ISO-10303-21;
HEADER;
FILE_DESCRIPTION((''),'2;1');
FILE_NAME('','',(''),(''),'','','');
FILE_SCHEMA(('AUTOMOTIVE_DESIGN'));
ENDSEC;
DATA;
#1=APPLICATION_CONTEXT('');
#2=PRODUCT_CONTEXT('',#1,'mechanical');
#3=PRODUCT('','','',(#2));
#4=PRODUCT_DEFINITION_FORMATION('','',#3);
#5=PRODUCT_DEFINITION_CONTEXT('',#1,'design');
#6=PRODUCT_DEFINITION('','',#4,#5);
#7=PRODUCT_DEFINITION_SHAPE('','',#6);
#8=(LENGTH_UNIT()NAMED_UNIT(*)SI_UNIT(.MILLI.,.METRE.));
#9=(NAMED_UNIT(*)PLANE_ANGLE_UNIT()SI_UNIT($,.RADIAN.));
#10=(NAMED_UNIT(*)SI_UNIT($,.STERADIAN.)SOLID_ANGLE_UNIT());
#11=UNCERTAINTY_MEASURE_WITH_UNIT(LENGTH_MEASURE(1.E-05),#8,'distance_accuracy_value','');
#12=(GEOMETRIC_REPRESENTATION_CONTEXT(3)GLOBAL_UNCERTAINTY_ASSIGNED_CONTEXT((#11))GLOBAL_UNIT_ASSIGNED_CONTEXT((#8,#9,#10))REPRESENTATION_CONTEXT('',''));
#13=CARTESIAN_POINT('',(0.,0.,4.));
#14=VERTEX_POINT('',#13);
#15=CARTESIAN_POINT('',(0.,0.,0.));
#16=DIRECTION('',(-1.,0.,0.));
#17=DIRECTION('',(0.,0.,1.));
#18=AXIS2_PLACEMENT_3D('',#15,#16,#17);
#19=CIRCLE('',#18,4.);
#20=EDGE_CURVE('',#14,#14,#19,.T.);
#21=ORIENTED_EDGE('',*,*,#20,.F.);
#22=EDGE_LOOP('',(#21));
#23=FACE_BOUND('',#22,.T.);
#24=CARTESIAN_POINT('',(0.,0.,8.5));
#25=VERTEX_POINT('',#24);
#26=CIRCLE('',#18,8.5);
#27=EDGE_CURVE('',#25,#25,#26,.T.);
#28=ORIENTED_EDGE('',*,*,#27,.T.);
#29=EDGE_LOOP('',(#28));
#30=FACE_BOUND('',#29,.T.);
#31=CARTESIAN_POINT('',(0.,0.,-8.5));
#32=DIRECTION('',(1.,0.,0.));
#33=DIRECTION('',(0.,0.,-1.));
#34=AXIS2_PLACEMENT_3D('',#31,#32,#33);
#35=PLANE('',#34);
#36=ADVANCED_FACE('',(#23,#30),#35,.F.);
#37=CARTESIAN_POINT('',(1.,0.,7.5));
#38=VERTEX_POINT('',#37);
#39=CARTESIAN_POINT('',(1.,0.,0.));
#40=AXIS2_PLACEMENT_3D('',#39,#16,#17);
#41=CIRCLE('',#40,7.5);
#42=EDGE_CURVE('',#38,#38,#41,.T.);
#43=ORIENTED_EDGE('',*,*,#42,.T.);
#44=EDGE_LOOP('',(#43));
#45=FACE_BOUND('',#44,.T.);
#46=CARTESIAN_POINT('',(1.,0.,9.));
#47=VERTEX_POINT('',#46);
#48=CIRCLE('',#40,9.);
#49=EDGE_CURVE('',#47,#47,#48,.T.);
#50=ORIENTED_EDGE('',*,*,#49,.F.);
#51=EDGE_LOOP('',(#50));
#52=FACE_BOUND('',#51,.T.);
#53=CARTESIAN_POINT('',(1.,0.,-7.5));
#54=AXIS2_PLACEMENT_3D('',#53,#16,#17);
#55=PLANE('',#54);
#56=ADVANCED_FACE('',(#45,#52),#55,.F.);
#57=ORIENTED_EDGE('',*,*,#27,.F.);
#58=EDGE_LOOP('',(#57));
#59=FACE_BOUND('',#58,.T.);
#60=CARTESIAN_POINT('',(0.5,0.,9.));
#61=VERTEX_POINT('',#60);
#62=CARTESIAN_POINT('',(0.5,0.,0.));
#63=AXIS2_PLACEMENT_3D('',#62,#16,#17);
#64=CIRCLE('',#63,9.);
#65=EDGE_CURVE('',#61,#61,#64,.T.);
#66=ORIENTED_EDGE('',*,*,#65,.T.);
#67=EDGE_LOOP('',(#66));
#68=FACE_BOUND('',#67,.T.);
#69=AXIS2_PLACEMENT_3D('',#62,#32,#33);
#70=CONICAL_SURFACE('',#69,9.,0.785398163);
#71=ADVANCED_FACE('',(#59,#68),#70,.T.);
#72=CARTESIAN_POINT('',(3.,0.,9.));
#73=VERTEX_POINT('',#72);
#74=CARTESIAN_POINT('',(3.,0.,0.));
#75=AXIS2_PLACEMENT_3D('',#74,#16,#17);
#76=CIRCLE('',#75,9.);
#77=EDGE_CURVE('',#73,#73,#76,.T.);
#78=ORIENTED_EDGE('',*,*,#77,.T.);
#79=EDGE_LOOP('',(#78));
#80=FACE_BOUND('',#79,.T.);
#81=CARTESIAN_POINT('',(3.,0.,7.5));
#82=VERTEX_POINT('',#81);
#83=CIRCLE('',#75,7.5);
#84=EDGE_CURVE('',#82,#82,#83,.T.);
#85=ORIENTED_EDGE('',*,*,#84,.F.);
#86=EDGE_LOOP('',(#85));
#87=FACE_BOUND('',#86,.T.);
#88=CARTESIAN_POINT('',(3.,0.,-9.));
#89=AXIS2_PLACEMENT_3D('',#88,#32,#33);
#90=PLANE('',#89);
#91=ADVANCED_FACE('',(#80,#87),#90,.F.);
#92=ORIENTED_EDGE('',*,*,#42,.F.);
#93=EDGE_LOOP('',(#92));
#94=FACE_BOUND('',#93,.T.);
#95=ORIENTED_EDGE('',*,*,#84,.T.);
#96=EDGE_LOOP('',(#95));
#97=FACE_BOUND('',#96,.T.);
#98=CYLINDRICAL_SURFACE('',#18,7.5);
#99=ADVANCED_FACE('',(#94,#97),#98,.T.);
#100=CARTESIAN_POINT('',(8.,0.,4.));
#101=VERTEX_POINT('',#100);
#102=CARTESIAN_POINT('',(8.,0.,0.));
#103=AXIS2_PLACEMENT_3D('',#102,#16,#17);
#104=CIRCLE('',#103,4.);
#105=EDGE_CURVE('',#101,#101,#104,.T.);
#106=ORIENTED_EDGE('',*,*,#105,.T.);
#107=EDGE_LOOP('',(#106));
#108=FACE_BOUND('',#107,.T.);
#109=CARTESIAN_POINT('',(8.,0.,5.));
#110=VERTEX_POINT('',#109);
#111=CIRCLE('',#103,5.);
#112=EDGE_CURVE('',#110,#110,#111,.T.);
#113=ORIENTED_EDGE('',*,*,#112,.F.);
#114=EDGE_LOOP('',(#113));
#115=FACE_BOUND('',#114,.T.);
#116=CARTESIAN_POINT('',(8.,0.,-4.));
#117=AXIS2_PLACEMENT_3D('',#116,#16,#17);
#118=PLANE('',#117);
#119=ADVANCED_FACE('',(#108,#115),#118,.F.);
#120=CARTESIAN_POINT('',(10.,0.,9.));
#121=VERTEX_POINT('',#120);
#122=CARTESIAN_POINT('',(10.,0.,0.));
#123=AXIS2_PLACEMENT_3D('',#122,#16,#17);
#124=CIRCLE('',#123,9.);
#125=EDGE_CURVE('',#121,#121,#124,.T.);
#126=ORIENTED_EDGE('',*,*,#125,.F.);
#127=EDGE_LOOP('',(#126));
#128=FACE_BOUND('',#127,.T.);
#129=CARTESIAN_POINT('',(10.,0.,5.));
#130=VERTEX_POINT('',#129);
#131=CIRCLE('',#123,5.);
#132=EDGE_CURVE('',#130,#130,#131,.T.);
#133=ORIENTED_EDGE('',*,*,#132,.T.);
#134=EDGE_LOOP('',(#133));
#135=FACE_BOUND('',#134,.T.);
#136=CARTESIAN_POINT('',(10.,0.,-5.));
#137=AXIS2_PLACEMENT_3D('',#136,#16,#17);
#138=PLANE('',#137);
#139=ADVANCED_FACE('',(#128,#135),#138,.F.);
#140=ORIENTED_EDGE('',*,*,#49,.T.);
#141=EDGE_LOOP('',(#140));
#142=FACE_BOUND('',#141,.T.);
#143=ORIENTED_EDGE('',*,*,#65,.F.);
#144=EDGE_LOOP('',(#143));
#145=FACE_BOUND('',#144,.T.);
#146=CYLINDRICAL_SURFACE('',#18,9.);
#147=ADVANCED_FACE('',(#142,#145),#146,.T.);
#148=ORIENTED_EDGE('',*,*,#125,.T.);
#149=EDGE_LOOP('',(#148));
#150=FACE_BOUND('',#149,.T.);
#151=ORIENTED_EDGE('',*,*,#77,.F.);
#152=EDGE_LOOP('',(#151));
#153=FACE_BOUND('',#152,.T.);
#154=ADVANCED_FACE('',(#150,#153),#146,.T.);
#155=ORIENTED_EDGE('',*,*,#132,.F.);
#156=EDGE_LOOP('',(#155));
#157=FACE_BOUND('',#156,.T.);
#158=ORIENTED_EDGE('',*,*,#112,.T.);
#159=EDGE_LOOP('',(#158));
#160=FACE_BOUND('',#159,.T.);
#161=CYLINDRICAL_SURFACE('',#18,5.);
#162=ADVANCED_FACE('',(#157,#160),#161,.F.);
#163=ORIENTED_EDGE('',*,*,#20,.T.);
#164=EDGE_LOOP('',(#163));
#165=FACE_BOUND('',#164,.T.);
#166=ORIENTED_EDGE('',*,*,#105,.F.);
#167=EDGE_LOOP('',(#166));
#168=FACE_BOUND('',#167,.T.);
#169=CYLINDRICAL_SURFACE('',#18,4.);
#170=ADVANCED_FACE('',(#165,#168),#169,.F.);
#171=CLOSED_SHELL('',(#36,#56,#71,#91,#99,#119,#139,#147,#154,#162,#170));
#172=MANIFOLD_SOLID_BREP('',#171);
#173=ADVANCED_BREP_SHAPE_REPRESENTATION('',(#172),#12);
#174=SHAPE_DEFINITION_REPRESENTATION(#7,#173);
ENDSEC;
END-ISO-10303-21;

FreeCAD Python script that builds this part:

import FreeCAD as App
import Part
import Sketcher
from FreeCAD import Vector
Q = App.Units.Quantity

doc = App.newDocument("Part")
body = doc.addObject("PartDesign::Body", "Body")

# Sketch on XZ plane
sketch1 = body.newObject("Sketcher::SketchObject", "Sketch")
sketch1.AttachmentSupport = (doc.getObject("XZ_Plane"), [""])
sketch1.MapMode = "FlatFace"
sketch1.addGeometry([
    Part.LineSegment(Vector(0, -4, 0), Vector(8, -4, 0)),  # 0
    Part.LineSegment(Vector(8, -4, 0), Vector(8, -5, 0)),  # 1
    Part.LineSegment(Vector(8, -5, 0), Vector(10, -5, 0)),  # 2
    Part.LineSegment(Vector(10, -5, 0), Vector(10, -9, 0)),  # 3
    Part.LineSegment(Vector(10, -9, 0), Vector(3, -9, 0)),  # 4
    Part.LineSegment(Vector(3, -9, 0), Vector(3, -7.5, 0)),  # 5
    Part.LineSegment(Vector(3, -7.5, 0), Vector(1, -7.5, 0)),  # 6
    Part.LineSegment(Vector(1, -7.5, 0), Vector(1, -9, 0)),  # 7
    Part.LineSegment(Vector(1, -9, 0), Vector(0.5, -9, 0)),  # 8
    Part.LineSegment(Vector(0.5, -9, 0), Vector(0, -8.5, 0)),  # 9
    Part.LineSegment(Vector(0, -8.5, 0), Vector(0, -4, 0)),  # 10
], False)
sketch1.addConstraint([
    Sketcher.Constraint("Coincident", 0, 2, 1, 1),
    Sketcher.Constraint("Coincident", 1, 2, 2, 1),
    Sketcher.Constraint("Coincident", 2, 2, 3, 1),
    Sketcher.Constraint("Coincident", 3, 2, 4, 1),
    Sketcher.Constraint("Coincident", 4, 2, 5, 1),
    Sketcher.Constraint("Coincident", 5, 2, 6, 1),
    Sketcher.Constraint("Coincident", 6, 2, 7, 1),
    Sketcher.Constraint("Coincident", 7, 2, 8, 1),
    Sketcher.Constraint("Coincident", 8, 2, 9, 1),
    Sketcher.Constraint("Coincident", 9, 2, 10, 1),
    Sketcher.Constraint("Coincident", 10, 2, 0, 1),
    Sketcher.Constraint("Horizontal", 0),
    Sketcher.Constraint("Vertical", 1),
    Sketcher.Constraint("Horizontal", 2),
    Sketcher.Constraint("Vertical", 3),
    Sketcher.Constraint("Horizontal", 4),
    Sketcher.Constraint("Vertical", 5),
    Sketcher.Constraint("Horizontal", 6),
    Sketcher.Constraint("Vertical", 7),
    Sketcher.Constraint("Horizontal", 8),
    Sketcher.Constraint("Vertical", 10),
    Sketcher.Constraint("PointOnObject", 9, 2, -2),
    Sketcher.Constraint("Horizontal", 4, 2, 7, 2),
    Sketcher.Constraint("Equal", 2, 6),
    Sketcher.Constraint("DistanceX", 0, 1, 0, 2, Q("8 mm")),
    Sketcher.Constraint("DistanceX", 2, 1, 2, 2, Q("2 mm")),
    Sketcher.Constraint("DistanceX", 4, 2, 4, 1, Q("7 mm")),
    Sketcher.Constraint("DistanceY", 1, 2, 1, 1, Q("1 mm")),
    Sketcher.Constraint("DistanceY", 3, 2, 3, 1, Q("4 mm")),
    Sketcher.Constraint("Angle", 9, Q("135 deg")),
    Sketcher.Constraint("DistanceX", 8, 2, 8, 1, Q("0.5 mm")),
    Sketcher.Constraint("DistanceY", 5, 1, 5, 2, Q("1.5 mm")),
    Sketcher.Constraint("DistanceY", 0, 2, -1, 1, Q("4 mm")),
])
revolution = body.newObject("PartDesign::Revolution", "Revolution")
revolution.Profile = sketch1
revolution.ReferenceAxis = (sketch1, ["H_Axis"])
revolution.Angle = 360

doc.recompute()
